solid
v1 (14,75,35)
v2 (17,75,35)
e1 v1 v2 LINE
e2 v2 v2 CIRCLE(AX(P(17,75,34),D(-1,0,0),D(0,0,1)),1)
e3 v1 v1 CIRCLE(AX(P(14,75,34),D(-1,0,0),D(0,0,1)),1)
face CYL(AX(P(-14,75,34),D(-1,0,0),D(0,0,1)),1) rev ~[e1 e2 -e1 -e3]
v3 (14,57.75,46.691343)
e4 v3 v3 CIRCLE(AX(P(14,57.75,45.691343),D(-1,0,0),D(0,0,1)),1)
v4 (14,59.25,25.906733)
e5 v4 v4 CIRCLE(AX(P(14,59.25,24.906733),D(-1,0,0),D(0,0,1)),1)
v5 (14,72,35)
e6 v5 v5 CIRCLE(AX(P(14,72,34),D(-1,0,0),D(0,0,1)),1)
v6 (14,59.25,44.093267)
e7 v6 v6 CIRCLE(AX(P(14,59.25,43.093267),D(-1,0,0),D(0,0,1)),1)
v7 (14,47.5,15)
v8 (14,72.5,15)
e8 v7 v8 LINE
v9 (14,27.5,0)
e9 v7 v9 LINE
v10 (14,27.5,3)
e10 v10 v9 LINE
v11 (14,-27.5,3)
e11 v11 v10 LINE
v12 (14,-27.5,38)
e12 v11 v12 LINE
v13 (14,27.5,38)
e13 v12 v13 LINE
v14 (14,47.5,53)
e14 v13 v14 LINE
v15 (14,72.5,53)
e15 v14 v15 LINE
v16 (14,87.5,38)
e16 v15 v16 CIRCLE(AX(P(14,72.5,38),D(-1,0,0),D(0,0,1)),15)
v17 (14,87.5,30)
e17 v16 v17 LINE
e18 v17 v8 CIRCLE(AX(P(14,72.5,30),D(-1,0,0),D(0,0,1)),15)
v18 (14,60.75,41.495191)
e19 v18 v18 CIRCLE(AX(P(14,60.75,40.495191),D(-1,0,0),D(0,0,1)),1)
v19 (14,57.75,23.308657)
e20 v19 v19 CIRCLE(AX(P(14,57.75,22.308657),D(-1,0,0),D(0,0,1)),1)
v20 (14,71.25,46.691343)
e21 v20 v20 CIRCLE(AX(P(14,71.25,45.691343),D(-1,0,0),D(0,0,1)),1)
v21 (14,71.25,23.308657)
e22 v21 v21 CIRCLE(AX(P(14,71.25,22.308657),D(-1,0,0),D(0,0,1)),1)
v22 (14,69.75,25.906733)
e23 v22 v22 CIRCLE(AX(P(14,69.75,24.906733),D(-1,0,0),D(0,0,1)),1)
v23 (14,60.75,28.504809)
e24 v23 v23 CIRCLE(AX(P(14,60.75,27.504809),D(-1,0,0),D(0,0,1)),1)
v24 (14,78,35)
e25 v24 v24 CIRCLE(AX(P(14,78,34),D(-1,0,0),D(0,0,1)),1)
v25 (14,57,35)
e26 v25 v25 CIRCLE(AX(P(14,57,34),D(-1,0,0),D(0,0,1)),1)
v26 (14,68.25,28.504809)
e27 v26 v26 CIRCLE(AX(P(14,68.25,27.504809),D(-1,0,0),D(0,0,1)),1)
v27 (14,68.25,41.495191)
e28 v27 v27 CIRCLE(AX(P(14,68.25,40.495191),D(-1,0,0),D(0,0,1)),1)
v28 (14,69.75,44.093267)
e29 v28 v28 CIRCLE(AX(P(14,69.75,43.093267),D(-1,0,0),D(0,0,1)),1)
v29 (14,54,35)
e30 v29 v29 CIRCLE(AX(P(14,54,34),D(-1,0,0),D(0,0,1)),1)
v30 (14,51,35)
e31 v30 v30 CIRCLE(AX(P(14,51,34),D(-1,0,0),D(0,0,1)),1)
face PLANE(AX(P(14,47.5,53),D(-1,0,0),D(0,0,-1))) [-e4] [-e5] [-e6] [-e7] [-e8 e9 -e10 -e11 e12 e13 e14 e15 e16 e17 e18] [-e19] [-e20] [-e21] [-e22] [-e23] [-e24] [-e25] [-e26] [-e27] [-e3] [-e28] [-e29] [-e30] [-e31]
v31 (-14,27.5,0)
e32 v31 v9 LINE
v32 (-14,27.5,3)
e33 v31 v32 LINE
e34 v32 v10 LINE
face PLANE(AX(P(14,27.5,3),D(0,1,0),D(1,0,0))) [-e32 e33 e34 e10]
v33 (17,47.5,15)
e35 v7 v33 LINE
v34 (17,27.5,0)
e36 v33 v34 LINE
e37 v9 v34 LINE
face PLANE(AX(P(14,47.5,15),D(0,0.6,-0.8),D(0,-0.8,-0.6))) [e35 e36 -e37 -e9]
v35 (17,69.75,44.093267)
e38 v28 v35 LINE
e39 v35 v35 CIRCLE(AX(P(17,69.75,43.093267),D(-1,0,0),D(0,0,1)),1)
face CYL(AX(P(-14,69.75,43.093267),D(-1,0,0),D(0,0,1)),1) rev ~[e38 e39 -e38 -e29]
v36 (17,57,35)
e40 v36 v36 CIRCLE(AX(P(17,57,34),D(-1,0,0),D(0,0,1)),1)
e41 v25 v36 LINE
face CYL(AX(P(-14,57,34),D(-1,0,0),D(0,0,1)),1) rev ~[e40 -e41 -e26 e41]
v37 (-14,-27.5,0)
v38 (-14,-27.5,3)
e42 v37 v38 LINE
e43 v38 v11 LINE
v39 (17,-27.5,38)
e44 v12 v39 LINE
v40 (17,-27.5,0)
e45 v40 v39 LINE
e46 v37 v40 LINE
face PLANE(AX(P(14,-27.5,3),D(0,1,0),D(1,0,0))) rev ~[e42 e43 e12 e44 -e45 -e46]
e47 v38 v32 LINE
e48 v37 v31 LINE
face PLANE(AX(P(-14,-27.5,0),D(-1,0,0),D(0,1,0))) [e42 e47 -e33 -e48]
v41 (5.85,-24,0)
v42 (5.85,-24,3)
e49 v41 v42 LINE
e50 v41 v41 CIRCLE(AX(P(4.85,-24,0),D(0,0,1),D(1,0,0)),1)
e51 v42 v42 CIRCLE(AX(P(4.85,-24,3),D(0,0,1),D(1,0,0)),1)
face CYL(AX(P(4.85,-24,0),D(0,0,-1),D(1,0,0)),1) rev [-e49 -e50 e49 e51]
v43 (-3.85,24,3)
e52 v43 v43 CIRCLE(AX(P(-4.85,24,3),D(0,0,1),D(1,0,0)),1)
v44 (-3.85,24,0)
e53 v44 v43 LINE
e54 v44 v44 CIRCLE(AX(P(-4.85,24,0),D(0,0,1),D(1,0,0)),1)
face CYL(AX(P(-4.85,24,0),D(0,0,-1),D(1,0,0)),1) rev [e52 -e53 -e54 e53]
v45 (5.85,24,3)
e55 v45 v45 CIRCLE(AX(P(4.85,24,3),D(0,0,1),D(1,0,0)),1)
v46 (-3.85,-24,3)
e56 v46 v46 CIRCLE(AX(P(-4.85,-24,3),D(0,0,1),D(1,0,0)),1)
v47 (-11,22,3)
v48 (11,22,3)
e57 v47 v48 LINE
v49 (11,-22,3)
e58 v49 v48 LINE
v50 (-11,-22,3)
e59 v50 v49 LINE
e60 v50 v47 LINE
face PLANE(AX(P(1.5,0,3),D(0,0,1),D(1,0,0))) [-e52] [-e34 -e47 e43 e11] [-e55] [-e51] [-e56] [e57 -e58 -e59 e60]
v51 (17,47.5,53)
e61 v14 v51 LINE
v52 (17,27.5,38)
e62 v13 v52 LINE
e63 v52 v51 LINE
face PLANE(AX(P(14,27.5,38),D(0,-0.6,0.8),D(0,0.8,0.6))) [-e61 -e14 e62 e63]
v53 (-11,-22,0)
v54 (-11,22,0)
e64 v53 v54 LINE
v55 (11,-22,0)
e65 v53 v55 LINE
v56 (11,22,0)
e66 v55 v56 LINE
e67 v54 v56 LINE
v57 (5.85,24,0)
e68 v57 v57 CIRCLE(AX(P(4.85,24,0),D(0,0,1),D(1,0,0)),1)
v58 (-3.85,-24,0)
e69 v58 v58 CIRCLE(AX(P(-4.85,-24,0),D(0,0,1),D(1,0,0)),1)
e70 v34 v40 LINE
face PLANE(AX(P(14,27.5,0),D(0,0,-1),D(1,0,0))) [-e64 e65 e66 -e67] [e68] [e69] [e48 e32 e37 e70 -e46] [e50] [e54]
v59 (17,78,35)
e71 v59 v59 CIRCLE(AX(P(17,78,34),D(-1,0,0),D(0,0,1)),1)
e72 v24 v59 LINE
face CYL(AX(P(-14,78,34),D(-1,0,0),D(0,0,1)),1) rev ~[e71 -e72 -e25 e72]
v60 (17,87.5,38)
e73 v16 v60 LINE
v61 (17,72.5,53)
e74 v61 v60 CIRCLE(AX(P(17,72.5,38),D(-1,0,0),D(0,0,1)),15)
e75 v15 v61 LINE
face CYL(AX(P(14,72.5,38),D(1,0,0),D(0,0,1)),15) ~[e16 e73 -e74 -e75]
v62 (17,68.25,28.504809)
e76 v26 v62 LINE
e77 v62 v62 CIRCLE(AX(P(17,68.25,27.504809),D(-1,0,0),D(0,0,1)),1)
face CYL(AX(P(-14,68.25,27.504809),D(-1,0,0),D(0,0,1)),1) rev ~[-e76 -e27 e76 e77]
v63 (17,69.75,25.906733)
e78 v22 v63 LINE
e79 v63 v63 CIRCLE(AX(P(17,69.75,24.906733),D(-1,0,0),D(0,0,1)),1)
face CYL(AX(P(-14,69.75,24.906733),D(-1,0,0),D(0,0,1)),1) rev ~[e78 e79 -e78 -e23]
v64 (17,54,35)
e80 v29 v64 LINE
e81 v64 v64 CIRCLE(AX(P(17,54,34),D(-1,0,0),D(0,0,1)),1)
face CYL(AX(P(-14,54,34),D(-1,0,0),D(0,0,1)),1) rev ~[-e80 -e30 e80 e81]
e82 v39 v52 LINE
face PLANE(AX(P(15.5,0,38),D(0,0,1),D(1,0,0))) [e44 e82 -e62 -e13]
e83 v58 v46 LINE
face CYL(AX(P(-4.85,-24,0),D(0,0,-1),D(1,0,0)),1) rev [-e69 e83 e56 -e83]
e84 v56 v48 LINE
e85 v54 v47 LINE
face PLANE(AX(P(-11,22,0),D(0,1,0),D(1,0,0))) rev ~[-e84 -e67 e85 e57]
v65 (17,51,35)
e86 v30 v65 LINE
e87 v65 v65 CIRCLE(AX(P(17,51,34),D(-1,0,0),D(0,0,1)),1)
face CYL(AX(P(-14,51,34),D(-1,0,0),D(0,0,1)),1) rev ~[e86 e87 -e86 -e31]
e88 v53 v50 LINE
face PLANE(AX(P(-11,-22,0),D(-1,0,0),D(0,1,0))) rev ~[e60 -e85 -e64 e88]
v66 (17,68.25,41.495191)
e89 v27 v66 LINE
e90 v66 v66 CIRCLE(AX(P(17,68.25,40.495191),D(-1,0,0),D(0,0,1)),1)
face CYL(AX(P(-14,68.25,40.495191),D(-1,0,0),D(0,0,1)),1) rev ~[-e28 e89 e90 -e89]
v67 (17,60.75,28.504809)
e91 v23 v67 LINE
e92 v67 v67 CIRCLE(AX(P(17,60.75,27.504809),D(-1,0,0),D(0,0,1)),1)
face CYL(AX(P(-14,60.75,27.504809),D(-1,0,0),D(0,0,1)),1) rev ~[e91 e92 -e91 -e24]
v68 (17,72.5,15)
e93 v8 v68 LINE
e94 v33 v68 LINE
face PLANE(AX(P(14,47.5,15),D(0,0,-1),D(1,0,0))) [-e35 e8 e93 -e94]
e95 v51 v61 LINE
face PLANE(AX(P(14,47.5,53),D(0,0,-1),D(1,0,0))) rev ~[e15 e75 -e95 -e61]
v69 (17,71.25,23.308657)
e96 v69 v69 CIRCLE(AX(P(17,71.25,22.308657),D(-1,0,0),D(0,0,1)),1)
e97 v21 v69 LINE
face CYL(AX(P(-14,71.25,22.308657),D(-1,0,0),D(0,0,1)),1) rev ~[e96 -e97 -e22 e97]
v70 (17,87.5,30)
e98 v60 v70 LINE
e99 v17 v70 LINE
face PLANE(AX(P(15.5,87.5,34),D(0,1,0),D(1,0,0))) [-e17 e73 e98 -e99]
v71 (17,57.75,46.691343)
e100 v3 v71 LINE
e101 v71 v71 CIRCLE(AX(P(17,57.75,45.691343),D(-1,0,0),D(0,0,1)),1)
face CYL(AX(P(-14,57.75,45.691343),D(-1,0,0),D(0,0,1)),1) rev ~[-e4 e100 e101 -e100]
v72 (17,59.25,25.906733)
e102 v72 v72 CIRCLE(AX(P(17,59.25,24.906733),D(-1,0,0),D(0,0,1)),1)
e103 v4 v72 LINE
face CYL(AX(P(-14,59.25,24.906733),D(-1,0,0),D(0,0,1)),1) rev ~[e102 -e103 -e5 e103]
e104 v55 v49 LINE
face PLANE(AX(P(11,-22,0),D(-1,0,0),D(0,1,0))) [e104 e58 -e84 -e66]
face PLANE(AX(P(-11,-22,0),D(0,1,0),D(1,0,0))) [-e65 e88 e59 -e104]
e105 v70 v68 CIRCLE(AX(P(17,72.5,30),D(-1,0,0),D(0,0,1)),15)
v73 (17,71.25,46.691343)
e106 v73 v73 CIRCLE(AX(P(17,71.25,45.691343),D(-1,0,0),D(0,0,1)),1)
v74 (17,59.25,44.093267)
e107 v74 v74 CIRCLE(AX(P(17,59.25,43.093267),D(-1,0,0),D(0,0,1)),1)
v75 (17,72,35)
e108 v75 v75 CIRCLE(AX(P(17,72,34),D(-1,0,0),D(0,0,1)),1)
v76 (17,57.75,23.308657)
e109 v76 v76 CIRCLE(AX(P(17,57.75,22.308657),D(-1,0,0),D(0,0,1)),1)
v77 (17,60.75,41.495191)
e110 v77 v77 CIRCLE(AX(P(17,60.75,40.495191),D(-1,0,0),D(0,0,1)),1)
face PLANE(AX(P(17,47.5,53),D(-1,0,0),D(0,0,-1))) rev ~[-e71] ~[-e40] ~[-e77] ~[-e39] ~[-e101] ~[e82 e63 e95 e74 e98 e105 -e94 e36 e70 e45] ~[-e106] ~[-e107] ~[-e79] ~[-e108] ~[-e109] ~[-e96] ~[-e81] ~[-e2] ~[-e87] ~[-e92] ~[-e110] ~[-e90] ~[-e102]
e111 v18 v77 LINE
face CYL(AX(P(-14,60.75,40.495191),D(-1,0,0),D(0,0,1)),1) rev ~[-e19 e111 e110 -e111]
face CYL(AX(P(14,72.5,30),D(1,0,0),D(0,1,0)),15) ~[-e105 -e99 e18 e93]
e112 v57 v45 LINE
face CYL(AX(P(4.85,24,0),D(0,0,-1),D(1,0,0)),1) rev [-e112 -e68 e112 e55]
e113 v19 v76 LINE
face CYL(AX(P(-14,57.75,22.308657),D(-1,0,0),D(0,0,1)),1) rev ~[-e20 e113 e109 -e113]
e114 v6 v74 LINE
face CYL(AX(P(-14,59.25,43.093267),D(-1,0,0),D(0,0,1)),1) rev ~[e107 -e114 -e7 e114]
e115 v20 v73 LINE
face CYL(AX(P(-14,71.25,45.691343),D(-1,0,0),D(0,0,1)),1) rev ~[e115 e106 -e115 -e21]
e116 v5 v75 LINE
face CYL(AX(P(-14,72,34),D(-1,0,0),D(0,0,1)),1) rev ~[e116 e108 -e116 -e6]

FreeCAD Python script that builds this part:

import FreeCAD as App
import Part
import Sketcher

V = App.Vector


def edges_at(feature, points):
    """Names of the edges that pass closest to the given points."""
    edges = feature.Shape.Edges
    near = lambda p: min(range(len(edges)), key=lambda i: edges[i].distToShape(Part.Vertex(*p))[0])
    return sorted({f"Edge{near(p) + 1}" for p in points})


def add_polygon(sketch, points):
    """Adds a closed chain of lines whose ends are joined by coincident constraints."""
    first, n = sketch.GeometryCount, len(points)
    for a, b in zip(points, points[1:] + points[:1]):
        sketch.addGeometry(Part.LineSegment(App.Vector(*a, 0), App.Vector(*b, 0)), False)
    for i in range(n):
        sketch.addConstraint(Sketcher.Constraint("Coincident", first + i, 2, first + (i + 1) % n, 1))

doc = App.newDocument("Part")
params = doc.addObject("Spreadsheet::Sheet", "Params")
for row, (alias, value) in enumerate([
    ("sketch1_diameter", "2 mm"),
    ("sketch1_width", "31 mm"),
    ("sketch1_width2", "22 mm"),
    ("sketch1_height", "55 mm"),
    ("sketch1_height2", "44 mm"),
    ("pad1_length", "3 mm"),
    ("sketch2_width", "3 mm"),
    ("sketch2_height", "55 mm"),
    ("pad2_length", "35 mm"),
    ("sketch3_width", "3 mm"),
    ("sketch3_height", "53 mm"),
    ("pad3_length", "20 mm"),
    ("sketch4_width", "20 mm"),
    ("sketch4_height", "15 mm"),
    ("pocket1_length", "3 mm"),
    ("sketch5_width", "3 mm"),
    ("sketch5_height", "38 mm"),
    ("pad4_length", "40 mm"),
    ("sketch6_diameter", "2 mm"),
    ("pocket2_length", "31 mm"),
    ("fillet_radius", "15 mm"),
], start=1):
    params.set(f"A{row}", alias)
    params.set(f"B{row}", "=" + value)
    params.setAlias(f"B{row}", alias)

body = doc.addObject("PartDesign::Body", "Body")

# Sketch on XY plane
sketch1 = body.newObject("Sketcher::SketchObject", "Sketch")
sketch1.AttachmentSupport = (doc.getObject("XY_Plane"), [""])
sketch1.MapMode = "FlatFace"
add_polygon(sketch1, [(-14, 27.5), (-14, -27.5), (17, -27.5), (17, 27.5)])  # lines 0-3
sketch1.addGeometry(Part.Circle(V(-4.8, -24, 0), V(0, 0, 1), 1), False)  # 4
sketch1.addGeometry(Part.Circle(V(4.8, -24, 0), V(0, 0, 1), 1), False)  # 5
sketch1.addGeometry(Part.Circle(V(-4.8, 24, 0), V(0, 0, 1), 1), False)  # 6
add_polygon(sketch1, [(11, -22), (-11, -22), (-11, 22), (11, 22)])  # lines 7-10
sketch1.addGeometry(Part.Circle(V(4.8, 24, 0), V(0, 0, 1), 1), False)  # 11
sketch1.addConstraint([
    Sketcher.Constraint("Vertical", 0),
    Sketcher.Constraint("Horizontal", 1),
    Sketcher.Constraint("Vertical", 2),
    Sketcher.Constraint("Horizontal", 3),
    Sketcher.Constraint("Horizontal", 7),
    Sketcher.Constraint("Vertical", 8),
    Sketcher.Constraint("Horizontal", 9),
    Sketcher.Constraint("Vertical", 10),
    Sketcher.Constraint("Equal", 4, 5),
    Sketcher.Constraint("Equal", 5, 6),
    Sketcher.Constraint("Equal", 6, 11),
    Sketcher.Constraint("Symmetric", 5, 3, 6, 3, -1, 1),
    Sketcher.Constraint("Symmetric", 4, 3, 11, 3, -1, 1),
    Sketcher.Constraint("Symmetric", 7, 2, 9, 2, -1, 1),
    Sketcher.Constraint("Symmetric", 4, 3, 5, 3, -2),
    Sketcher.Constraint("Diameter", 4, 2.0),
    Sketcher.Constraint("DistanceX", 1, 1, 1, 2, 31.0),
    Sketcher.Constraint("DistanceX", 7, 2, 7, 1, 22.0),
    Sketcher.Constraint("DistanceY", 0, 2, 0, 1, 55.0),
    Sketcher.Constraint("DistanceY", 8, 1, 8, 2, 44.0),
    Sketcher.Constraint("DistanceY", 4, 3, -1, 1, 24.0),
    Sketcher.Constraint("DistanceX", 0, 2, -1, 1, 14.0),
    Sketcher.Constraint("DistanceY", 0, 2, -1, 1, 27.5),
    Sketcher.Constraint("DistanceX", 4, 3, 5, 3, 9.7),
])
sketch1.setExpression("Constraints[23]", "Params.sketch1_diameter")
sketch1.setExpression("Constraints[24]", "Params.sketch1_width")
sketch1.setExpression("Constraints[25]", "Params.sketch1_width2")
sketch1.setExpression("Constraints[26]", "Params.sketch1_height")
sketch1.setExpression("Constraints[27]", "Params.sketch1_height2")
pad1 = body.newObject("PartDesign::Pad", "Pad")
pad1.Profile = sketch1
pad1.setExpression("Length", "Params.pad1_length")

# Sketch on XY plane
sketch2 = body.newObject("Sketcher::SketchObject", "Sketch001")
sketch2.AttachmentSupport = (doc.getObject("XY_Plane"), [""])
sketch2.MapMode = "FlatFace"
sketch2.AttachmentOffset = App.Placement(V(0, 0, 3), App.Rotation())
add_polygon(sketch2, [(14, 27.5), (14, -27.5), (17, -27.5), (17, 27.5)])  # lines 0-3
sketch2.addConstraint([
    Sketcher.Constraint("Vertical", 0),
    Sketcher.Constraint("Horizontal", 1),
    Sketcher.Constraint("Vertical", 2),
    Sketcher.Constraint("Horizontal", 3),
    Sketcher.Constraint("DistanceX", 1, 1, 1, 2, 3.0),
    Sketcher.Constraint("DistanceY", 0, 2, 0, 1, 55.0),
    Sketcher.Constraint("DistanceX", -1, 1, 0, 2, 14.0),
    Sketcher.Constraint("DistanceY", 0, 2, -1, 1, 27.5),
])
sketch2.setExpression("Constraints[8]", "Params.sketch2_width")
sketch2.setExpression("Constraints[9]", "Params.sketch2_height")
pad2 = body.newObject("PartDesign::Pad", "Pad001")
pad2.Profile = sketch2
pad2.setExpression("Length", "Params.pad2_length")

# Sketch on XZ plane
sketch3 = body.newObject("Sketcher::SketchObject", "Sketch002")
sketch3.AttachmentSupport = (doc.getObject("XZ_Plane"), [""])
sketch3.MapMode = "FlatFace"
sketch3.AttachmentOffset = App.Placement(V(0, 0, -27.5), App.Rotation())
add_polygon(sketch3, [(14, 0), (14, 53), (17, 53), (17, 0)])  # lines 0-3
sketch3.addConstraint([
    Sketcher.Constraint("Vertical", 0),
    Sketcher.Constraint("Horizontal", 1),
    Sketcher.Constraint("Vertical", 2),
    Sketcher.Constraint("Horizontal", 3),
    Sketcher.Constraint("PointOnObject", 2, 2, -1),
    Sketcher.Constraint("DistanceX", 1, 1, 1, 2, 3.0),
    Sketcher.Constraint("DistanceY", 0, 1, 0, 2, 53.0),
    Sketcher.Constraint("DistanceX", -1, 1, 0, 2, 14.0),
])
sketch3.setExpression("Constraints[9]", "Params.sketch3_width")
sketch3.setExpression("Constraints[10]", "Params.sketch3_height")
pad3 = body.newObject("PartDesign::Pad", "Pad002")
pad3.Profile = sketch3
pad3.setExpression("Length", "Params.pad3_length")
pad3.Reversed = True

# Sketch on YZ plane
sketch4 = body.newObject("Sketcher::SketchObject", "Sketch003")
sketch4.AttachmentSupport = (doc.getObject("YZ_Plane"), [""])
sketch4.MapMode = "FlatFace"
sketch4.AttachmentOffset = App.Placement(V(0, 0, 14), App.Rotation())
add_polygon(sketch4, [(28, 38), (28, 53), (48, 53)])  # lines 0-2
add_polygon(sketch4, [(48, 0), (28, 0), (48, 15)])  # lines 3-5
sketch4.addConstraint([
    Sketcher.Constraint("Vertical", 0),
    Sketcher.Constraint("Horizontal", 1),
    Sketcher.Constraint("Horizontal", 3),
    Sketcher.Constraint("Vertical", 5),
    Sketcher.Constraint("PointOnObject", 3, 2, -1),
    Sketcher.Constraint("Parallel", 2, 4),
    Sketcher.Constraint("Vertical", 2, 2, 3, 2),
    Sketcher.Constraint("Vertical", 1, 2, 4, 2),
    Sketcher.Constraint("DistanceX", 1, 1, 1, 2, 20.0),
    Sketcher.Constraint("DistanceY", 0, 1, 0, 2, 15.0),
    Sketcher.Constraint("DistanceY", -1, 1, 0, 2, 53.0),
    Sketcher.Constraint("DistanceX", -1, 1, 0, 2, 27.5),
])
sketch4.setExpression("Constraints[14]", "Params.sketch4_width")
sketch4.setExpression("Constraints[15]", "Params.sketch4_height")
pocket1 = body.newObject("PartDesign::Pocket", "Pocket")
pocket1.Profile = sketch4
pocket1.setExpression("Length", "Params.pocket1_length")
pocket1.Reversed = True

# Sketch on XZ plane
sketch5 = body.newObject("Sketcher::SketchObject", "Sketch004")
sketch5.AttachmentSupport = (doc.getObject("XZ_Plane"), [""])
sketch5.MapMode = "FlatFace"
sketch5.AttachmentOffset = App.Placement(V(0, 0, -47.5), App.Rotation())
add_polygon(sketch5, [(14, 15), (14, 53), (17, 53), (17, 15)])  # lines 0-3
sketch5.addConstraint([
    Sketcher.Constraint("Vertical", 0),
    Sketcher.Constraint("Horizontal", 1),
    Sketcher.Constraint("Vertical", 2),
    Sketcher.Constraint("Horizontal", 3),
    Sketcher.Constraint("DistanceX", 1, 1, 1, 2, 3.0),
    Sketcher.Constraint("DistanceY", 0, 1, 0, 2, 38.0),
    Sketcher.Constraint("DistanceX", -1, 1, 0, 2, 14.0),
    Sketcher.Constraint("DistanceY", -1, 1, 0, 2, 53.0),
])
sketch5.setExpression("Constraints[8]", "Params.sketch5_width")
sketch5.setExpression("Constraints[9]", "Params.sketch5_height")
pad4 = body.newObject("PartDesign::Pad", "Pad003")
pad4.Profile = sketch5
pad4.setExpression("Length", "Params.pad4_length")
pad4.Reversed = True

# Sketch on YZ plane
sketch6 = body.newObject("Sketcher::SketchObject", "Sketch005")
sketch6.AttachmentSupport = (doc.getObject("YZ_Plane"), [""])
sketch6.MapMode = "FlatFace"
sketch6.AttachmentOffset = App.Placement(V(0, 0, -14), App.Rotation())
sketch6.addGeometry([
    Part.Circle(V(72, 34, 0), V(0, 0, 1), 1),  # 0
    Part.Circle(V(75, 34, 0), V(0, 0, 1), 1),  # 1
    Part.Circle(V(78, 34, 0), V(0, 0, 1), 1),  # 2
    Part.Circle(V(71.2, 45.7, 0), V(0, 0, 1), 1),  # 3
    Part.Circle(V(69.8, 43.1, 0), V(0, 0, 1), 1),  # 4
    Part.Circle(V(68.2, 40.5, 0), V(0, 0, 1), 1),  # 5
    Part.Circle(V(57.8, 45.7, 0), V(0, 0, 1), 1),  # 6
    Part.Circle(V(59.2, 43.1, 0), V(0, 0, 1), 1),  # 7
    Part.Circle(V(60.8, 40.5, 0), V(0, 0, 1), 1),  # 8
    Part.Circle(V(51, 34, 0), V(0, 0, 1), 1),  # 9
    Part.Circle(V(54, 34, 0), V(0, 0, 1), 1),  # 10
    Part.Circle(V(57, 34, 0), V(0, 0, 1), 1),  # 11
    Part.Circle(V(57.8, 22.3, 0), V(0, 0, 1), 1),  # 12
    Part.Circle(V(59.2, 24.9, 0), V(0, 0, 1), 1),  # 13
    Part.Circle(V(60.8, 27.5, 0), V(0, 0, 1), 1),  # 14
    Part.Circle(V(71.2, 22.3, 0), V(0, 0, 1), 1),  # 15
    Part.Circle(V(69.8, 24.9, 0), V(0, 0, 1), 1),  # 16
    Part.Circle(V(68.2, 27.5, 0), V(0, 0, 1), 1),  # 17
], False)
sketch6.addConstraint([
    Sketcher.Constraint("Equal", 0, 1),
    Sketcher.Constraint("Equal", 1, 2),
    Sketcher.Constraint("Equal", 2, 3),
    Sketcher.Constraint("Equal", 3, 4),
    Sketcher.Constraint("Equal", 4, 5),
    Sketcher.Constraint("Equal", 5, 6),
    Sketcher.Constraint("Equal", 6, 7),
    Sketcher.Constraint("Equal", 7, 8),
    Sketcher.Constraint("Equal", 8, 9),
    Sketcher.Constraint("Equal", 9, 10),
    Sketcher.Constraint("Equal", 10, 11),
    Sketcher.Constraint("Equal", 11, 12),
    Sketcher.Constraint("Equal", 12, 13),
    Sketcher.Constraint("Equal", 13, 14),
    Sketcher.Constraint("Equal", 14, 15),
    Sketcher.Constraint("Equal", 15, 16),
    Sketcher.Constraint("Equal", 16, 17),
    Sketcher.Constraint("Horizontal", 0, 3, 1, 3),
    Sketcher.Constraint("Horizontal", 1, 3, 2, 3),
    Sketcher.Constraint("Horizontal", 3, 3, 6, 3),
    Sketcher.Constraint("Horizontal", 4, 3, 7, 3),
    Sketcher.Constraint("Horizontal", 5, 3, 8, 3),
    Sketcher.Constraint("Horizontal", 2, 3, 9, 3),
    Sketcher.Constraint("Horizontal", 9, 3, 10, 3),
    Sketcher.Constraint("Horizontal", 10, 3, 11, 3),
    Sketcher.Constraint("Horizontal", 12, 3, 15, 3),
    Sketcher.Constraint("Horizontal", 13, 3, 16, 3),
    Sketcher.Constraint("Horizontal", 14, 3, 17, 3),
    Sketcher.Constraint("Vertical", 6, 3, 12, 3),
    Sketcher.Constraint("Vertical", 7, 3, 13, 3),
    Sketcher.Constraint("Vertical", 8, 3, 14, 3),
    Sketcher.Constraint("Vertical", 3, 3, 15, 3),
    Sketcher.Constraint("Vertical", 4, 3, 16, 3),
    Sketcher.Constraint("Vertical", 5, 3, 17, 3),
    Sketcher.Constraint("Diameter", 0, 2.0),
    Sketcher.Constraint("DistanceX", -1, 1, 0, 3, 72.0),
    Sketcher.Constraint("DistanceY", -1, 1, 0, 3, 34.0),
    Sketcher.Constraint("DistanceX", -1, 1, 1, 3, 75.0),
    Sketcher.Constraint("DistanceX", -1, 1, 2, 3, 78.0),
    Sketcher.Constraint("DistanceX", -1, 1, 9, 3, 51.0),
    Sketcher.Constraint("DistanceX", -1, 1, 10, 3, 54.0),
    Sketcher.Constraint("DistanceX", -1, 1, 11, 3, 57.0),
    Sketcher.Constraint("DistanceX", 5, 3, 3, 3, 3.0),
    Sketcher.Constraint("DistanceX", 6, 3, 4, 3, 12.0),
    Sketcher.Constraint("DistanceX", 7, 3, 5, 3, 9.0),
    Sketcher.Constraint("DistanceX", 6, 3, 8, 3, 3.0),
    Sketcher.Constraint("DistanceX", 4, 3, 3, 3, 1.5),
    Sketcher.Constraint("DistanceX", -1, 1, 3, 3, 71.25),
    Sketcher.Constraint("DistanceY", -1, 1, 5, 3, 40.495191),
    Sketcher.Constraint("DistanceY", -1, 1, 14, 3, 27.504809),
    Sketcher.Constraint("DistanceY", -1, 1, 3, 3, 45.691343),
    Sketcher.Constraint("DistanceY", -1, 1, 4, 3, 43.093267),
    Sketcher.Constraint("DistanceY", -1, 1, 12, 3, 22.308657),
    Sketcher.Constraint("DistanceY", -1, 1, 13, 3, 24.906733),
])
sketch6.setExpression("Constraints[34]", "Params.sketch6_diameter")
pocket2 = body.newObject("PartDesign::Pocket", "Pocket001")
pocket2.Profile = sketch6
pocket2.setExpression("Length", "Params.pocket2_length")
pocket2.Reversed = True
doc.recompute()

fillet = body.newObject("PartDesign::Fillet", "Fillet")
fillet.Base = (pocket2, edges_at(pocket2, [(15.5, 87.5, 53), (15.5, 87.5, 15)]))
fillet.setExpression("Radius", "Params.fillet_radius")

doc.recompute()
